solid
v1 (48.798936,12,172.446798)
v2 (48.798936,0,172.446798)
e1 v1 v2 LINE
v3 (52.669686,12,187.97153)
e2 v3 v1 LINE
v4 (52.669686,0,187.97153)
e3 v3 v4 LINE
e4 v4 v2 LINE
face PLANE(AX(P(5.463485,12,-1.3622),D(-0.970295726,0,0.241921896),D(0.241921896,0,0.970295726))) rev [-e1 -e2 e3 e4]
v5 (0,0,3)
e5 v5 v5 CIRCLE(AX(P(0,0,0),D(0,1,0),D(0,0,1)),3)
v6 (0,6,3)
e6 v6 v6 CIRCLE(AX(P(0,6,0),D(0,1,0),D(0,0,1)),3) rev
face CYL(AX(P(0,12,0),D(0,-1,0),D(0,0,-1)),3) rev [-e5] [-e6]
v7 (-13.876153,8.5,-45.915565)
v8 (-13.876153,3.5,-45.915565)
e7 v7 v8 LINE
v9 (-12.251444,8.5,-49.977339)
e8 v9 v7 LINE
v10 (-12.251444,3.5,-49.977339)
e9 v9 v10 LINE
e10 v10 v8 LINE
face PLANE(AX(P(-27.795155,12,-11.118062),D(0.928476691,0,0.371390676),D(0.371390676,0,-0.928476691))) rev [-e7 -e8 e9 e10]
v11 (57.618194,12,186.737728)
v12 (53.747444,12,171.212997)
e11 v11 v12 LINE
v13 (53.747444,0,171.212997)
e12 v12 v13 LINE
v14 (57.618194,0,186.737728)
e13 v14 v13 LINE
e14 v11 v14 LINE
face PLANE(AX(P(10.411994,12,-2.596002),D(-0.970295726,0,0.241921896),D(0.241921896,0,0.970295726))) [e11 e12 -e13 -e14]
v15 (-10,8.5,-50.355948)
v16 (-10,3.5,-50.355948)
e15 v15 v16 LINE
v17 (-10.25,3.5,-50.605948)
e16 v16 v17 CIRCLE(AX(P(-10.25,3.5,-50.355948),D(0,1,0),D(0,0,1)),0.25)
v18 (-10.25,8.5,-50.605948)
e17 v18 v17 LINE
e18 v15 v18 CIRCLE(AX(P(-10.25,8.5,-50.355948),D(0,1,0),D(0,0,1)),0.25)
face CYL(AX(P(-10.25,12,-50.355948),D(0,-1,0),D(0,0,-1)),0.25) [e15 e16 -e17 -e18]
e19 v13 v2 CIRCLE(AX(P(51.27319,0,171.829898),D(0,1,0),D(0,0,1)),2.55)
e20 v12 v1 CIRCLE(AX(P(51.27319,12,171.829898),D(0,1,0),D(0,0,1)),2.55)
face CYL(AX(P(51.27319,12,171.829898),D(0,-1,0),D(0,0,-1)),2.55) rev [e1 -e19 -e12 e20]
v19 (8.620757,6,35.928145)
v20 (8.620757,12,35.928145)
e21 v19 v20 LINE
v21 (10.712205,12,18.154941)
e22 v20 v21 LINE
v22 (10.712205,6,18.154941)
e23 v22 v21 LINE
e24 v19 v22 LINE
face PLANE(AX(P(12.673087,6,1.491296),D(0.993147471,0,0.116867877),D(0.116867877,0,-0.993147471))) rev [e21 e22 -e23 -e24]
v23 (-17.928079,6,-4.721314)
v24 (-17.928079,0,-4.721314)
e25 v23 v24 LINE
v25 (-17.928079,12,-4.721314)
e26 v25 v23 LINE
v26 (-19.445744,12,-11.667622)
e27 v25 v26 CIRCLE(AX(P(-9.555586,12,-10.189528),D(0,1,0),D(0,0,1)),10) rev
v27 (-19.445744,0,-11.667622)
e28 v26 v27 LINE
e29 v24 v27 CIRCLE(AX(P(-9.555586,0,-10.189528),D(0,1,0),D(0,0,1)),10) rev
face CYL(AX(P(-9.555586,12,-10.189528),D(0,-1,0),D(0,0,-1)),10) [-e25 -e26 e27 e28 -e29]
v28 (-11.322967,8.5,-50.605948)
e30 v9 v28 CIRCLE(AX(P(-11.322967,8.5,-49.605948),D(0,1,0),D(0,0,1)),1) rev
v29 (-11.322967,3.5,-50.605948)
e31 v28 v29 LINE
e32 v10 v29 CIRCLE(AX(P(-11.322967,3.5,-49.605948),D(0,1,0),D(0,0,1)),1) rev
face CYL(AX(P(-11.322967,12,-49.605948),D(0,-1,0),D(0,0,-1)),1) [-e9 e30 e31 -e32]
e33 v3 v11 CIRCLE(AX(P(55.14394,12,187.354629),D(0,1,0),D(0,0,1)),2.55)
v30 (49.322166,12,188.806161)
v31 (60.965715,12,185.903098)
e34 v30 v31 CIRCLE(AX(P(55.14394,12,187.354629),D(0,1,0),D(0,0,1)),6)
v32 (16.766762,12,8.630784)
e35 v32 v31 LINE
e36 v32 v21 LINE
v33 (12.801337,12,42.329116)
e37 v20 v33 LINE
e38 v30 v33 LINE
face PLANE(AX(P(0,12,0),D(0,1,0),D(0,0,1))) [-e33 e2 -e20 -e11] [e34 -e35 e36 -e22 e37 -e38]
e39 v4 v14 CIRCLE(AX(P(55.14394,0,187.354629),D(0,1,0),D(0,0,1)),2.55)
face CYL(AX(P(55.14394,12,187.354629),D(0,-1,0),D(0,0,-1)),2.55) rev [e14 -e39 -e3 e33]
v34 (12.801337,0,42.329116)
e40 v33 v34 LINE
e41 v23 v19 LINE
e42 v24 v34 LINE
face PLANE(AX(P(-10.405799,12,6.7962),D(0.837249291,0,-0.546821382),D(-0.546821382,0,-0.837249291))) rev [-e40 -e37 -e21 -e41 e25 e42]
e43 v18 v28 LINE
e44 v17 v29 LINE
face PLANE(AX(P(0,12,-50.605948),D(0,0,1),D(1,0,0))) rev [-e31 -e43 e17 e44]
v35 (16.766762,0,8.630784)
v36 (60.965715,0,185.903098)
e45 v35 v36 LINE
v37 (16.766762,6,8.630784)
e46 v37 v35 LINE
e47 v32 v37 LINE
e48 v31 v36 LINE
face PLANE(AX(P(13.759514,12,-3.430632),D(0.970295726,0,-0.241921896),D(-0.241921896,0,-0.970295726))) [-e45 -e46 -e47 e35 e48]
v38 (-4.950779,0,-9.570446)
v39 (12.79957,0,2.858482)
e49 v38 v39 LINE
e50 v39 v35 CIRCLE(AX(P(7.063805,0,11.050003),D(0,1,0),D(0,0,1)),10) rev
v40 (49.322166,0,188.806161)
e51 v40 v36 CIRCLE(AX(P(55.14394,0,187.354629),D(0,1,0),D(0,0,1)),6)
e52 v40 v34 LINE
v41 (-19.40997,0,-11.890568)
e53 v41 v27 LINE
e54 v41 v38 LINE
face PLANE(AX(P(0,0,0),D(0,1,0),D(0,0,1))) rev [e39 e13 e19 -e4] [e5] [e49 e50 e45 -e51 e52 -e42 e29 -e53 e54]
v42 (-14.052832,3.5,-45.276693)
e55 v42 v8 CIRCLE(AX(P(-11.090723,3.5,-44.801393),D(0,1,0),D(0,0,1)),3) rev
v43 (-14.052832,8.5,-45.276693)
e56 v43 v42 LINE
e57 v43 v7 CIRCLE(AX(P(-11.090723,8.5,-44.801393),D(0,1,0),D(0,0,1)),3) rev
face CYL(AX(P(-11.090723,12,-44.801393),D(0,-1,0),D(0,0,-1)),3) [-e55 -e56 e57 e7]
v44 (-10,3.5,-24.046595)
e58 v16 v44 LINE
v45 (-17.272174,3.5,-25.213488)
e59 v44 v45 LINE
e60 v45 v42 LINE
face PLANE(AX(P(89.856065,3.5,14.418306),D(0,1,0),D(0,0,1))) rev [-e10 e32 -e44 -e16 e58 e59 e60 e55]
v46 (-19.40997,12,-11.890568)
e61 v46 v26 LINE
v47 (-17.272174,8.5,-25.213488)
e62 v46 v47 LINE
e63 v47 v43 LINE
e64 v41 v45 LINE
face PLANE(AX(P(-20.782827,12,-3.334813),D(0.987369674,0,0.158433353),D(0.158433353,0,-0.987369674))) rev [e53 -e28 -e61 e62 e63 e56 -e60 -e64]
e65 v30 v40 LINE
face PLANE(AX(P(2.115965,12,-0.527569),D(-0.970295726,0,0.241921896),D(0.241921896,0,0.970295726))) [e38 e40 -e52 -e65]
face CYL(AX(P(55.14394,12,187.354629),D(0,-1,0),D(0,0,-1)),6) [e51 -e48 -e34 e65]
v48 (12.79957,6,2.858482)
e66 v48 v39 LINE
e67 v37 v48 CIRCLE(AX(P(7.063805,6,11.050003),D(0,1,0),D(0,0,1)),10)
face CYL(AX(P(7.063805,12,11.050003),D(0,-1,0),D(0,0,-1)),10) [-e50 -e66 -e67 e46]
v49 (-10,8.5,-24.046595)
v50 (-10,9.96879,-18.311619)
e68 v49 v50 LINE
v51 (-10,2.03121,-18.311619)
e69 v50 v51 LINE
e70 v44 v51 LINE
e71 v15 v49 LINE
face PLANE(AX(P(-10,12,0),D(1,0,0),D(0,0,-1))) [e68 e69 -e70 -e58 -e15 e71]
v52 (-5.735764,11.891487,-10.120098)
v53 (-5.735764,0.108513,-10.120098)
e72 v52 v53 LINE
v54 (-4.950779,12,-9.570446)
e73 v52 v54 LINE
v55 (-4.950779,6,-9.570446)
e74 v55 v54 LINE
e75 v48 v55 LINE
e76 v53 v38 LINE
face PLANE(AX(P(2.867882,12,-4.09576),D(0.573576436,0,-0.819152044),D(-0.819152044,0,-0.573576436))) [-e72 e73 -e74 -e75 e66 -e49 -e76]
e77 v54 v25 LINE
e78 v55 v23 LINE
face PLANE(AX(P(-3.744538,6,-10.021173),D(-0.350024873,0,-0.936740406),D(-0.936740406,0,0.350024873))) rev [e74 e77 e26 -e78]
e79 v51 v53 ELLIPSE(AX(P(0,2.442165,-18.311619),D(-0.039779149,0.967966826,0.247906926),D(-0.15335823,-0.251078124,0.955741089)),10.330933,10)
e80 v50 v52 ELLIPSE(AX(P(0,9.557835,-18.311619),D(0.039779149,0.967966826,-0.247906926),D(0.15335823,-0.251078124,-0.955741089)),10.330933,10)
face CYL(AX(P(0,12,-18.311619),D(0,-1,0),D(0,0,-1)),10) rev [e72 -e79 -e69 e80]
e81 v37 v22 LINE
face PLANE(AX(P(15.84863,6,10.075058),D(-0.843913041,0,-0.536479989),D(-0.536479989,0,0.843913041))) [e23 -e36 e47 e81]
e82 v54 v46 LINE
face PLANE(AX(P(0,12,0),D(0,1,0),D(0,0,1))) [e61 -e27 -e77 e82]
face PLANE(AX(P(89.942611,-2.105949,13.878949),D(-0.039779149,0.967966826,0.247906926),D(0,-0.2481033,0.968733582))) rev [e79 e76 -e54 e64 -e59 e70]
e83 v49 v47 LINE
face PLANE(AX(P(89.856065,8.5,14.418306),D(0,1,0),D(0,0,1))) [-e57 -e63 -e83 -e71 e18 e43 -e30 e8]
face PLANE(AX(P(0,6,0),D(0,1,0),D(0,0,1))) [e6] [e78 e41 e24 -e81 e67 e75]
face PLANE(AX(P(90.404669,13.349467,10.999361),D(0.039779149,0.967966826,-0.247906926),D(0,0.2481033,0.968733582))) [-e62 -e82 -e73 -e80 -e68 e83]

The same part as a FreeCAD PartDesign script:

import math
import FreeCAD as App
import Part
import Sketcher

doc = App.newDocument("Part")
body = doc.addObject("PartDesign::Body", "Body")

# Sketch on XZ plane
sketch1 = doc.addObject("Sketcher::SketchObject", "Sketch")
body.addObject(sketch1)
sketch1.AttachmentSupport = (doc.XZ_Plane, [""])
sketch1.MapMode = "FlatFace"
sketch1.addGeometry([
    Part.ArcOfCircle(Part.Circle(App.Vector(55.14394, 187.354629, 0), App.Vector(0, 0, 1), 6), math.radians(-14), math.radians(166)),  # 0
    Part.LineSegment(App.Vector(60.965715, 185.903098, 0), App.Vector(16.766762, 8.630784, 0)),  # 1
    Part.ArcOfCircle(Part.Circle(App.Vector(7.063805, 11.050003, 0), App.Vector(0, 0, 1), 10), math.radians(-55), math.radians(-14)),  # 2
    Part.LineSegment(App.Vector(12.79957, 2.858482, 0), App.Vector(-5.735764, -10.120098, 0)),  # 3
    Part.ArcOfCircle(Part.Circle(App.Vector(0, -18.311619, 0), App.Vector(0, 0, 1), 10), math.radians(125), math.radians(180)),  # 4
    Part.LineSegment(App.Vector(-10, -18.311619, 0), App.Vector(-10, -50.355948, 0)),  # 5
    Part.ArcOfCircle(Part.Circle(App.Vector(-10.25, -50.355948, 0), App.Vector(0, 0, 1), 0.25), math.radians(-90), math.radians(0)),  # 6
    Part.LineSegment(App.Vector(-10.25, -50.605948, 0), App.Vector(-11.322967, -50.605948, 0)),  # 7
    Part.ArcOfCircle(Part.Circle(App.Vector(-11.322967, -49.605948, 0), App.Vector(0, 0, 1), 1), math.radians(-158.198591), math.radians(-90)),  # 8
    Part.LineSegment(App.Vector(-12.251444, -49.977339, 0), App.Vector(-13.876153, -45.915565, 0)),  # 9
    Part.ArcOfCircle(Part.Circle(App.Vector(-11.090723, -44.801393, 0), App.Vector(0, 0, 1), 3), math.radians(-170.884026), math.radians(-158.198591)),  # 10
    Part.LineSegment(App.Vector(-14.052832, -45.276693, 0), App.Vector(-19.445744, -11.667622, 0)),  # 11
    Part.ArcOfCircle(Part.Circle(App.Vector(-9.555586, -10.189528, 0), App.Vector(0, 0, 1), 10), math.radians(146.850781), math.radians(188.5)),  # 12
    Part.LineSegment(App.Vector(-17.928079, -4.721314, 0), App.Vector(12.801337, 42.329116, 0)),  # 13
    Part.LineSegment(App.Vector(12.801337, 42.329116, 0), App.Vector(49.322166, 188.806161, 0)),  # 14
    Part.ArcOfCircle(Part.Circle(App.Vector(51.27319, 171.829898, 0), App.Vector(0, 0, 1), 2.55), math.radians(166), math.radians(346)),  # 15
    Part.LineSegment(App.Vector(53.747444, 171.212997, 0), App.Vector(57.618194, 186.737728, 0)),  # 16
    Part.ArcOfCircle(Part.Circle(App.Vector(55.14394, 187.354629, 0), App.Vector(0, 0, 1), 2.55), math.radians(-14), math.radians(166)),  # 17
    Part.LineSegment(App.Vector(52.669686, 187.97153, 0), App.Vector(48.798936, 172.446798, 0)),  # 18
    Part.Circle(App.Vector(0, 0, 0), App.Vector(0, 0, 1), 3),  # 19
], False)
sketch1.addConstraint([
    Sketcher.Constraint("Coincident", 0, 1, 1, 1),
    Sketcher.Constraint("Coincident", 1, 2, 2, 2),
    Sketcher.Constraint("Coincident", 2, 1, 3, 1),
    Sketcher.Constraint("Coincident", 3, 2, 4, 1),
    Sketcher.Constraint("Coincident", 4, 2, 5, 1),
    Sketcher.Constraint("Coincident", 5, 2, 6, 2),
    Sketcher.Constraint("Coincident", 6, 1, 7, 1),
    Sketcher.Constraint("Coincident", 7, 2, 8, 2),
    Sketcher.Constraint("Coincident", 8, 1, 9, 1),
    Sketcher.Constraint("Coincident", 9, 2, 10, 2),
    Sketcher.Constraint("Coincident", 10, 1, 11, 1),
    Sketcher.Constraint("Coincident", 11, 2, 12, 2),
    Sketcher.Constraint("Coincident", 12, 1, 13, 1),
    Sketcher.Constraint("Coincident", 13, 2, 14, 1),
    Sketcher.Constraint("Coincident", 14, 2, 0, 2),
    Sketcher.Constraint("Coincident", 15, 2, 16, 1),
    Sketcher.Constraint("Coincident", 16, 2, 17, 1),
    Sketcher.Constraint("Coincident", 17, 2, 18, 1),
    Sketcher.Constraint("Coincident", 18, 2, 15, 1),
    Sketcher.Constraint("Vertical", 5),
    Sketcher.Constraint("Horizontal", 7),
    Sketcher.Constraint("Coincident", 19, 3, -1, 1),
    Sketcher.Constraint("Coincident", 17, 3, 0, 3),
    Sketcher.Constraint("PointOnObject", 4, 3, -2),
    Sketcher.Constraint("Diameter", 19, 6.0),
    Sketcher.Constraint("Radius", 0, 6.0),
    Sketcher.Constraint("Radius", 2, 10.0),
    Sketcher.Constraint("Radius", 4, 10.0),
    Sketcher.Constraint("Radius", 8, 1.0),
    Sketcher.Constraint("Radius", 10, 3.0),
    Sketcher.Constraint("Radius", 12, 10.0),
    Sketcher.Constraint("Radius", 6, 0.25),
    Sketcher.Constraint("Radius", 15, 2.55),
    Sketcher.Constraint("Radius", 17, 2.55),
    Sketcher.Constraint("Distance", 16, 16.0),
    Sketcher.Constraint("Distance", 18, 16.0),
    Sketcher.Constraint("DistanceX", 6, 1, -1, 1, 10.25),
    Sketcher.Constraint("DistanceY", 5, 2, 8, 3, 0.75),
    Sketcher.Constraint("DistanceY", 5, 2, 5, 1, 32.044329),
    Sketcher.Constraint("DistanceY", 3, 2, -1, 1, 10.120098),
    Sketcher.Constraint("DistanceY", -1, 1, 18, 2, 172.446798),
    Sketcher.Constraint("DistanceY", 15, 3, 0, 1, 14.0732),
    Sketcher.Constraint("DistanceY", 2, 1, 1, 2, 5.772301),
    Sketcher.Constraint("DistanceY", 4, 3, 2, 1, 21.170101),
    Sketcher.Constraint("DistanceY", 3, 2, 2, 3, 21.170101),
    Sketcher.Constraint("DistanceY", 10, 1, 10, 3, 0.4753),
    Sketcher.Constraint("DistanceX", 3, 2, 13, 2, 18.537101),
    Sketcher.Constraint("DistanceY", 15, 2, 15, 3, 0.616901),
    Sketcher.Constraint("DistanceY", 16, 2, 0, 3, 0.616901),
    Sketcher.Constraint("DistanceY", 0, 3, 17, 2, 0.616901),
    Sketcher.Constraint("Distance", 13, 56.196441),
    Sketcher.Constraint("Distance", 14, 150.961239),
    Sketcher.Constraint("DistanceX", 7, 2, 7, 1, 1.072967),
    Sketcher.Constraint("DistanceX", -1, 1, 0, 3, 55.14394),
    Sketcher.Constraint("DistanceY", -1, 1, 0, 3, 187.354629),
    Sketcher.Constraint("DistanceY", 4, 3, -1, 1, 18.311619),
    Sketcher.Constraint("DistanceY", 6, 3, -1, 1, 50.355948),
    Sketcher.Constraint("DistanceY", 12, 3, -1, 1, 10.189528),
    Sketcher.Constraint("DistanceX", -1, 1, 2, 1, 12.79957),
    Sketcher.Constraint("DistanceY", 8, 1, -1, 1, 49.977339),
    Sketcher.Constraint("DistanceX", 12, 1, -1, 1, 17.928079),
    Sketcher.Constraint("DistanceY", -1, 1, 14, 2, 188.806161),
    Sketcher.Constraint("DistanceX", 10, 3, 2, 3, 18.154528),
    Sketcher.Constraint("DistanceX", 8, 3, 12, 3, 1.767381),
    Sketcher.Constraint("DistanceY", 10, 3, 15, 3, 216.63129),
    Sketcher.Constraint("DistanceX", 9, 2, 10, 3, 2.78543),
    Sketcher.Constraint("DistanceX", 11, 2, 12, 3, 9.890159),
])
pad1 = doc.addObject("PartDesign::Pad", "Pad")
body.addObject(pad1)
pad1.Profile = sketch1
pad1.Length = 12
pad1.Reversed = True

# Sketch on an angled plane
sketch2 = doc.addObject("Sketcher::SketchObject", "Sketch001")
body.addObject(sketch2)
sketch2.Placement = App.Placement(App.Vector(-20.818601, 0, -3.111867), App.Rotation(App.Vector(-0.158433353, 0, 0.987369674), App.Vector(0, 1, 0), App.Vector(-0.987369674, 0, -0.158433353), "ZXY"))
sketch2.addGeometry([
    Part.LineSegment(App.Vector(-8.9, 0, 0), App.Vector(-22.4, 3.5, 0)),  # 0
    Part.LineSegment(App.Vector(-22.4, 3.5, 0), App.Vector(-57.4, 3.5, 0)),  # 1
    Part.LineSegment(App.Vector(-57.4, 3.5, 0), App.Vector(-57.4, 0, 0)),  # 2
    Part.LineSegment(App.Vector(-57.4, 0, 0), App.Vector(-8.9, 0, 0)),  # 3
    Part.LineSegment(App.Vector(-22.4, 8.5, 0), App.Vector(-8.9, 12, 0)),  # 4
    Part.LineSegment(App.Vector(-8.9, 12, 0), App.Vector(-57.4, 12, 0)),  # 5
    Part.LineSegment(App.Vector(-57.4, 12, 0), App.Vector(-57.4, 8.5, 0)),  # 6
    Part.LineSegment(App.Vector(-57.4, 8.5, 0), App.Vector(-22.4, 8.5, 0)),  # 7
], False)
sketch2.addConstraint([
    Sketcher.Constraint("Coincident", 0, 2, 1, 1),
    Sketcher.Constraint("Coincident", 1, 2, 2, 1),
    Sketcher.Constraint("Coincident", 2, 2, 3, 1),
    Sketcher.Constraint("Coincident", 3, 2, 0, 1),
    Sketcher.Constraint("Coincident", 4, 2, 5, 1),
    Sketcher.Constraint("Coincident", 5, 2, 6, 1),
    Sketcher.Constraint("Coincident", 6, 2, 7, 1),
    Sketcher.Constraint("Coincident", 7, 2, 4, 1),
    Sketcher.Constraint("Horizontal", 1),
    Sketcher.Constraint("Vertical", 2),
    Sketcher.Constraint("Horizontal", 3),
    Sketcher.Constraint("Horizontal", 5),
    Sketcher.Constraint("Vertical", 6),
    Sketcher.Constraint("Horizontal", 7),
    Sketcher.Constraint("PointOnObject", 2, 2, -1),
    Sketcher.Constraint("Vertical", 3, 2, 4, 2),
    Sketcher.Constraint("Vertical", 2, 2, 5, 2),
    Sketcher.Constraint("Vertical", 0, 2, 7, 2),
    Sketcher.Constraint("Equal", 2, 6),
    Sketcher.Constraint("DistanceX", 1, 2, 1, 1, 35.0),
    Sketcher.Constraint("DistanceY", 2, 2, 2, 1, 3.5),
    Sketcher.Constraint("DistanceY", -1, 1, 4, 2, 12.0),
    Sketcher.Constraint("DistanceX", 3, 1, 3, 2, 48.493346),
    Sketcher.Constraint("DistanceX", 0, 2, -1, 1, 22.384343),
])
pocket1 = doc.addObject("PartDesign::Pocket", "Pocket")
body.addObject(pocket1)
pocket1.Profile = sketch2
pocket1.Type = "ThroughAll"

# Sketch on XZ plane
sketch3 = doc.addObject("Sketcher::SketchObject", "Sketch002")
body.addObject(sketch3)
sketch3.AttachmentSupport = (doc.XZ_Plane, [""])
sketch3.MapMode = "FlatFace"
sketch3.AttachmentOffset = App.Placement(App.Vector(0, 0, -12), App.Rotation())
sketch3.addGeometry([
    Part.LineSegment(App.Vector(-5, -10, 0), App.Vector(-18, -5, 0)),  # 0
    Part.LineSegment(App.Vector(-18, -5, 0), App.Vector(9, 36, 0)),  # 1
    Part.LineSegment(App.Vector(9, 36, 0), App.Vector(11, 18, 0)),  # 2
    Part.LineSegment(App.Vector(11, 18, 0), App.Vector(17, 9, 0)),  # 3
    Part.LineSegment(App.Vector(17, 9, 0), App.Vector(17, 3, 0)),  # 4
    Part.LineSegment(App.Vector(17, 3, 0), App.Vector(-5, -10, 0)),  # 5
], False)
sketch3.addConstraint([
    Sketcher.Constraint("Coincident", 0, 2, 1, 1),
    Sketcher.Constraint("Coincident", 1, 2, 2, 1),
    Sketcher.Constraint("Coincident", 2, 2, 3, 1),
    Sketcher.Constraint("Coincident", 3, 2, 4, 1),
    Sketcher.Constraint("Coincident", 4, 2, 5, 1),
    Sketcher.Constraint("Coincident", 5, 2, 0, 1),
    Sketcher.Constraint("Parallel", 2, 4),
    Sketcher.Constraint("DistanceY", 0, 2, 3, 2, 13.352098),
    Sketcher.Constraint("DistanceX", 1, 2, 4, 2, 8.811401),
    Sketcher.Constraint("DistanceX", 0, 2, 5, 2, 12.977299),
    Sketcher.Constraint("Distance", 3, 11.285709),
    Sketcher.Constraint("DistanceX", 0, 2, -1, 1, 17.928079),
    Sketcher.Constraint("DistanceY", -1, 1, 2, 2, 18.154941),
    Sketcher.Constraint("DistanceX", -1, 1, 4, 2, 17.432158),
    Sketcher.Constraint("DistanceY", 0, 2, 1, 2, 40.64946),
    Sketcher.Constraint("DistanceX", 1, 2, 2, 2, 2.091448),
    Sketcher.Constraint("DistanceX", 0, 2, 3, 2, 34.694841),
    Sketcher.Constraint("DistanceY", 5, 2, 0, 2, 4.849132),
])
pocket2 = doc.addObject("PartDesign::Pocket", "Pocket001")
body.addObject(pocket2)
pocket2.Profile = sketch3
pocket2.Length = 6
pocket2.Reversed = True

doc.recompute()
